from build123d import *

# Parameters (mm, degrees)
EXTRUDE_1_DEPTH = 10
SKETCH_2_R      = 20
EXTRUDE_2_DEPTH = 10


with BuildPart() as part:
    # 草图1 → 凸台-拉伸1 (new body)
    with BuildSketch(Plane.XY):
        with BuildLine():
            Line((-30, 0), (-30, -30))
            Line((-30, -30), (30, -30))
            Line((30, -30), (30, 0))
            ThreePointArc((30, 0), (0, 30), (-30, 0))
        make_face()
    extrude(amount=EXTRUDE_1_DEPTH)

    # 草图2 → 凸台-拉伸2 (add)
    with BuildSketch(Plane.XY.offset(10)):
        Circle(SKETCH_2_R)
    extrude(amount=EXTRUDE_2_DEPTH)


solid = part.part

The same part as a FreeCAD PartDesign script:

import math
import FreeCAD as App
import Part
import Sketcher

V = App.Vector

doc = App.newDocument("Part")
params = doc.addObject("Spreadsheet::Sheet", "Params")
for row, (alias, value) in enumerate([
    ("sketch1_radius", "30 mm"),
    ("sketch1_height", "30 mm"),
    ("pad1_length", "10 mm"),
    ("sketch2_diameter", "40 mm"),
    ("pad2_length", "10 mm"),
], start=1):
    params.set(f"A{row}", alias)
    params.set(f"B{row}", "=" + value)
    params.setAlias(f"B{row}", alias)

body = doc.addObject("PartDesign::Body", "Body")

# Sketch on XY plane
sketch1 = body.newObject("Sketcher::SketchObject", "Sketch")
sketch1.AttachmentSupport = (doc.getObject("XY_Plane"), [""])
sketch1.MapMode = "FlatFace"
sketch1.addGeometry(Part.LineSegment(V(-30, 0, 0), V(-30, -30, 0)), False)
sketch1.addGeometry(Part.LineSegment(V(-30, -30, 0), V(30, -30, 0)), False)
sketch1.addGeometry(Part.LineSegment(V(30, -30, 0), V(30, 0, 0)), False)
sketch1.addGeometry(Part.ArcOfCircle(Part.Circle(V(0, 0, 0), V(0, 0, 1), 30), math.radians(0), math.radians(180)), False)
sketch1.addConstraint(Sketcher.Constraint("Coincident", 0, 2, 1, 1))
sketch1.addConstraint(Sketcher.Constraint("Coincident", 1, 2, 2, 1))
sketch1.addConstraint(Sketcher.Constraint("Tangent", 2, 2, 3, 1))
sketch1.addConstraint(Sketcher.Constraint("Tangent", 3, 2, 0, 1))
sketch1.addConstraint(Sketcher.Constraint("Vertical", 0))
sketch1.addConstraint(Sketcher.Constraint("Horizontal", 1))
sketch1.addConstraint(Sketcher.Constraint("Vertical", 2))
sketch1.addConstraint(Sketcher.Constraint("Coincident", 3, 3, -1, 1))
sketch1.addConstraint(Sketcher.Constraint("Radius", 3, 30.0))
sketch1.addConstraint(Sketcher.Constraint("DistanceY", 0, 2, 0, 1, 30.0))
sketch1.setExpression("Constraints[8]", "Params.sketch1_radius")
sketch1.setExpression("Constraints[9]", "Params.sketch1_height")
pad1 = body.newObject("PartDesign::Pad", "Pad")
pad1.Profile = sketch1
pad1.setExpression("Length", "Params.pad1_length")

# Sketch on XY plane
sketch2 = body.newObject("Sketcher::SketchObject", "Sketch001")
sketch2.AttachmentSupport = (doc.getObject("XY_Plane"), [""])
sketch2.MapMode = "FlatFace"
sketch2.AttachmentOffset = App.Placement(V(0, 0, 10), App.Rotation())
sketch2.addGeometry(Part.Circle(V(0, 0, 0), V(0, 0, 1), 20), False)
sketch2.addConstraint(Sketcher.Constraint("Coincident", 0, 3, -1, 1))
sketch2.addConstraint(Sketcher.Constraint("Diameter", 0, 40.0))
sketch2.setExpression("Constraints[1]", "Params.sketch2_diameter")
pad2 = body.newObject("PartDesign::Pad", "Pad001")
pad2.Profile = sketch2
pad2.setExpression("Length", "Params.pad2_length")

doc.recompute()
